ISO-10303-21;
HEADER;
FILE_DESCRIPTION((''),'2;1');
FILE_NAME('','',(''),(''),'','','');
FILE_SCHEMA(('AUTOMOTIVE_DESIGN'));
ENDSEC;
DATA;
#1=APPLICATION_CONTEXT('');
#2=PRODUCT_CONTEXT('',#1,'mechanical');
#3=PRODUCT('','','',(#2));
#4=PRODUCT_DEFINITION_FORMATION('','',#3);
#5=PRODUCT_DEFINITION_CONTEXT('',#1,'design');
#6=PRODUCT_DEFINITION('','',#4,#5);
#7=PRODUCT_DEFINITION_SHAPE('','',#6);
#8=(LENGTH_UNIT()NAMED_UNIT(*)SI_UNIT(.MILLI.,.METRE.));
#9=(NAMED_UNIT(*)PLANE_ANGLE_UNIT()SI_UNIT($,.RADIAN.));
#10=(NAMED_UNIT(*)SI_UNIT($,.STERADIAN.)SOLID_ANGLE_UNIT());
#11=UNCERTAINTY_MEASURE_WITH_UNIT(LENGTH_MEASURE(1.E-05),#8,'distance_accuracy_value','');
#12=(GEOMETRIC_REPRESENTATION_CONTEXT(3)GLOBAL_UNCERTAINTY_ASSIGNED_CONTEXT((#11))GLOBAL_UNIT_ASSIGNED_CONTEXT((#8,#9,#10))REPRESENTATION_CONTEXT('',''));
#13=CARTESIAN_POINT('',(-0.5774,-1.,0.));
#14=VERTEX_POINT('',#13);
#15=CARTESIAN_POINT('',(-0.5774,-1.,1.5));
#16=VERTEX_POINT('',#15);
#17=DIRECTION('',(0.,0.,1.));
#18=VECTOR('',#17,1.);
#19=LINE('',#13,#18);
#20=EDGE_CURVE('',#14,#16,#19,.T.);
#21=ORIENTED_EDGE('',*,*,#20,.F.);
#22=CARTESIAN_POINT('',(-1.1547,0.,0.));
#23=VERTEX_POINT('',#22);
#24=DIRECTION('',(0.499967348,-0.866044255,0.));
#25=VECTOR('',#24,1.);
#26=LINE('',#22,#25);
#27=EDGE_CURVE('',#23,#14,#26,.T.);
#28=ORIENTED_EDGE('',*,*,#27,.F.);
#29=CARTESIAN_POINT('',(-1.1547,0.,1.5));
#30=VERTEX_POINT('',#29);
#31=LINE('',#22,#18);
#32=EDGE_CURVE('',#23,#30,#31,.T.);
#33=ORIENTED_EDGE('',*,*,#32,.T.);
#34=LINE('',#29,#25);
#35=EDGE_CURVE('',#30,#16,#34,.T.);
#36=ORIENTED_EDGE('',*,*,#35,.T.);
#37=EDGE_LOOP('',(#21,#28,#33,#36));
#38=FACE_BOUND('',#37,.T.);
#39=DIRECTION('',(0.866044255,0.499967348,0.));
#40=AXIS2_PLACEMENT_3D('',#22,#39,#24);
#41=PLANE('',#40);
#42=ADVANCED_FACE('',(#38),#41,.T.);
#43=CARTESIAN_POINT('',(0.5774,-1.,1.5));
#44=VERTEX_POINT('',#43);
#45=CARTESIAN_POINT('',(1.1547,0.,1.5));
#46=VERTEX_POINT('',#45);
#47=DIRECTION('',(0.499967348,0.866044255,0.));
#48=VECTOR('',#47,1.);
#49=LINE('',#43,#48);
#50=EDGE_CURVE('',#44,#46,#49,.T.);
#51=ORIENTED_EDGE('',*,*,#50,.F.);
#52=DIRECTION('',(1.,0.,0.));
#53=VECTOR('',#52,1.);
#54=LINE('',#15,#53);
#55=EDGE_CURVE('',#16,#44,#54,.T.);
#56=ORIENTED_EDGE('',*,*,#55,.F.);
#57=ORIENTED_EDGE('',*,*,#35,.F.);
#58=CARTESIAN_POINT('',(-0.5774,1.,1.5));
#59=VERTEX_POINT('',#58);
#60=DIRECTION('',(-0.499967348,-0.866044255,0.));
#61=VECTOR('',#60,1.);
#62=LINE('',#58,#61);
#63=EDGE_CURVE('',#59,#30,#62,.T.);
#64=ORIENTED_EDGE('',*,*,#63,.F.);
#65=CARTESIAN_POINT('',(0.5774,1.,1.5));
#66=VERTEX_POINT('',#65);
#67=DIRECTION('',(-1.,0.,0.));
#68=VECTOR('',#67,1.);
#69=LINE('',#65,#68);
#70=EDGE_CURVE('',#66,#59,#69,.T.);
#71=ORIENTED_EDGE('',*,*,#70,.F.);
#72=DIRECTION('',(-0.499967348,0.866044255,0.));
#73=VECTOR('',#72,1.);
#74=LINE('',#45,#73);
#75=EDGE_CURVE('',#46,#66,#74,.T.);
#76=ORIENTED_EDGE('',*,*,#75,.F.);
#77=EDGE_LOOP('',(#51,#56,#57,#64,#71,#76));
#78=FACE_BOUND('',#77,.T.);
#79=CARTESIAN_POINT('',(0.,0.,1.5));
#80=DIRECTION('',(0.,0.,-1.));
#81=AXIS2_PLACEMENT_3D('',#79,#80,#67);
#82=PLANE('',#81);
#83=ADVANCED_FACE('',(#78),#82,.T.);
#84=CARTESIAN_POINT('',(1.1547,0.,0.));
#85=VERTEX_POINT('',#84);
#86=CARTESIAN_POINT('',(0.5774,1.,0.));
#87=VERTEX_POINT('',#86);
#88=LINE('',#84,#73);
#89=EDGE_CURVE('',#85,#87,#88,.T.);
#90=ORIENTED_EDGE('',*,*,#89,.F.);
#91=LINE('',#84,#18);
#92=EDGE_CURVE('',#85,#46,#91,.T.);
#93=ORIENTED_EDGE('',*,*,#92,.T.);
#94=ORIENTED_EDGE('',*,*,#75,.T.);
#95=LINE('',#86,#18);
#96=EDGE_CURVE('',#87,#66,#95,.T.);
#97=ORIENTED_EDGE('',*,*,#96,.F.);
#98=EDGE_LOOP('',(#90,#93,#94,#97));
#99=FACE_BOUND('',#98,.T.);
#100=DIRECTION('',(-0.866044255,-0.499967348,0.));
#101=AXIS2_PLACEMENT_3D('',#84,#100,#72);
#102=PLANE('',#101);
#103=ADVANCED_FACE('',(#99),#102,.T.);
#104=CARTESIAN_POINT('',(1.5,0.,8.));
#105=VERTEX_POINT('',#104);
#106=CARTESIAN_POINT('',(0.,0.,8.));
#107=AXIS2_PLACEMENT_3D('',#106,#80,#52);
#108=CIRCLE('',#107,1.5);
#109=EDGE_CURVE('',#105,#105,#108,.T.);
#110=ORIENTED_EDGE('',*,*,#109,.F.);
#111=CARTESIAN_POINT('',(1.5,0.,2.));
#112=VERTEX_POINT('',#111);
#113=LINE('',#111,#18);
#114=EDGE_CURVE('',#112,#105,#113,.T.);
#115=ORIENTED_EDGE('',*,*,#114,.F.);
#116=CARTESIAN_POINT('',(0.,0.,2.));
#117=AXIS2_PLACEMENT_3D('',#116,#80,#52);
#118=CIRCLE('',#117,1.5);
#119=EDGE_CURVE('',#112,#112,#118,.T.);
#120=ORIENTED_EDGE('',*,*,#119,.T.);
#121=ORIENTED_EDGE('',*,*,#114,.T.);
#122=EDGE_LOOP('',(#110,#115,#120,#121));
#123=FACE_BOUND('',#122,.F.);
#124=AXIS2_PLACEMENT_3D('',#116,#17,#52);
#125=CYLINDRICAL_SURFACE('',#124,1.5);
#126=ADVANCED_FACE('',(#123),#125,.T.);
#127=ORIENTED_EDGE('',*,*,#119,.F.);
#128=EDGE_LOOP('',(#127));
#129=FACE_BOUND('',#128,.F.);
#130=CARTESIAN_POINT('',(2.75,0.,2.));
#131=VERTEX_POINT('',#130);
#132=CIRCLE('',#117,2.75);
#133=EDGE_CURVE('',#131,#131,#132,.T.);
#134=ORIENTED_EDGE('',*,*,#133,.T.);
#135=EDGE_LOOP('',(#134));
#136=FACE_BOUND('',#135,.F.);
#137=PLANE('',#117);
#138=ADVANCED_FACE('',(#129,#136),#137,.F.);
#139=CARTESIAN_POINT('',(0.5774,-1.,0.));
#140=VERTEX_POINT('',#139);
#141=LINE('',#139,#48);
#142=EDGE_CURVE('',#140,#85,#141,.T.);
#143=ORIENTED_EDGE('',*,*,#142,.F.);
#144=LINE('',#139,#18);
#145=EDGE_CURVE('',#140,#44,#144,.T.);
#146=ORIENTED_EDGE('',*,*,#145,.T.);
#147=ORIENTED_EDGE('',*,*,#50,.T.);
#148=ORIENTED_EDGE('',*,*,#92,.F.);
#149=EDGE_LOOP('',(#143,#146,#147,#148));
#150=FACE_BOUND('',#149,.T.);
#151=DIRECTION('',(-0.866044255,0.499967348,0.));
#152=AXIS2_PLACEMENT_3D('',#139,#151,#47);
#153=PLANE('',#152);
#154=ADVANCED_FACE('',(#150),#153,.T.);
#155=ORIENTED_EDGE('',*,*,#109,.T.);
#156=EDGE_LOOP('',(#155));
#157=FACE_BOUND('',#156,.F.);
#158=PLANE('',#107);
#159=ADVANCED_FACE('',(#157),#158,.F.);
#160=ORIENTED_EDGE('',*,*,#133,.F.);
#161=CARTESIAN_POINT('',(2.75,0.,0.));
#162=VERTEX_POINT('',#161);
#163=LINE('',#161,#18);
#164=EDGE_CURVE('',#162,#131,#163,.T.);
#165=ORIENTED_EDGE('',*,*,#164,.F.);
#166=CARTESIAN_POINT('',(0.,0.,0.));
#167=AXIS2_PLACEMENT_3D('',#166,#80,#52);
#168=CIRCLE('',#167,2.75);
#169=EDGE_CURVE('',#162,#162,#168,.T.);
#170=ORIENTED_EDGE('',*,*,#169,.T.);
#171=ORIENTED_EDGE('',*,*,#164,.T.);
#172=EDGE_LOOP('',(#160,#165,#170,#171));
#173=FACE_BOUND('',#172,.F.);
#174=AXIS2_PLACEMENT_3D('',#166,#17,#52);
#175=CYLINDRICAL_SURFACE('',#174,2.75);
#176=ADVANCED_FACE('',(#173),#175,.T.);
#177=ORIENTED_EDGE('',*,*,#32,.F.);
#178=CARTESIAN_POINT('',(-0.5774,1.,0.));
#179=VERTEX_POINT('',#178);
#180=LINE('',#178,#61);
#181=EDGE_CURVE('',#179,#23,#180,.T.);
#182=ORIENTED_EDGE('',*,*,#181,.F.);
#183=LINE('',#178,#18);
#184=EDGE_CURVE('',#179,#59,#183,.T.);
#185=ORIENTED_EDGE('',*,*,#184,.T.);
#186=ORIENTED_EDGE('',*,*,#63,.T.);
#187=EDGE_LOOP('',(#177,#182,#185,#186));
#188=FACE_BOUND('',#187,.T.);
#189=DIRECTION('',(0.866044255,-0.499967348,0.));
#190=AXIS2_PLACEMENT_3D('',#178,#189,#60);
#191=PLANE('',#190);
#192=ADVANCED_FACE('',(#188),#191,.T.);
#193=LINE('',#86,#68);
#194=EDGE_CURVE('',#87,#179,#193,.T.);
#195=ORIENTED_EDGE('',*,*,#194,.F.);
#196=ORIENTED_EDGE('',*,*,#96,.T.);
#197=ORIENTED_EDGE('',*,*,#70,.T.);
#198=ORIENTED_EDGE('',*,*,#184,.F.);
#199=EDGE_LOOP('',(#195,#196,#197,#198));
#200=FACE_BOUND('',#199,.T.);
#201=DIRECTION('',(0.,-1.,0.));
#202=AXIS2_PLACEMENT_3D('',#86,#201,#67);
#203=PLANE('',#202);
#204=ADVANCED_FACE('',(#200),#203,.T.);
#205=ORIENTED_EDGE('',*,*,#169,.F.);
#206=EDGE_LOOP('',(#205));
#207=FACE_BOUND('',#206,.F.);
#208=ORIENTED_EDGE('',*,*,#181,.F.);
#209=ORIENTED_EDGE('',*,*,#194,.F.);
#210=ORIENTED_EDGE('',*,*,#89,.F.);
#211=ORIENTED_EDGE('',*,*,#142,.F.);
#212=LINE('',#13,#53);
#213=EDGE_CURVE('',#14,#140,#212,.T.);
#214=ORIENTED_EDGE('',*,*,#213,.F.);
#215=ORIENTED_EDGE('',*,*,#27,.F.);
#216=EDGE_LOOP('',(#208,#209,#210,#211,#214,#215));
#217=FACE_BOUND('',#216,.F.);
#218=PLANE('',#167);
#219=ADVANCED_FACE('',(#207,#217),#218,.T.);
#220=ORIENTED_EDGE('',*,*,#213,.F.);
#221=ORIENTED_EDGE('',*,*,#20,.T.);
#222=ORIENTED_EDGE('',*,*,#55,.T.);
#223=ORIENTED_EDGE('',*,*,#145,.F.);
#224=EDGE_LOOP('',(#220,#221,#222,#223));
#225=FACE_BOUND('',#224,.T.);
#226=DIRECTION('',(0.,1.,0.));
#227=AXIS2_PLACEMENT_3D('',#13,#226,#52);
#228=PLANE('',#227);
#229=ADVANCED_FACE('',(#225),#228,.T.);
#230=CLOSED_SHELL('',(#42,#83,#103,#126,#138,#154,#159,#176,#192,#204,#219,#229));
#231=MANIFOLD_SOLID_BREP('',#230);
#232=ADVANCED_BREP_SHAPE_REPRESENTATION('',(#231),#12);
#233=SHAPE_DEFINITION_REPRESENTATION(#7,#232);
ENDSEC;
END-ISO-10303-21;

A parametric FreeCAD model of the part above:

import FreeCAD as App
import Part
import Sketcher
from FreeCAD import Vector
Q = App.Units.Quantity


def add_polygon(sketch, points):
    """Adds a closed chain of lines whose ends are joined by coincident constraints."""
    first, n = sketch.GeometryCount, len(points)
    for a, b in zip(points, points[1:] + points[:1]):
        sketch.addGeometry(Part.LineSegment(App.Vector(*a, 0), App.Vector(*b, 0)), False)
    for i in range(n):
        sketch.addConstraint(Sketcher.Constraint("Coincident", first + i, 2, first + (i + 1) % n, 1))

doc = App.newDocument("Part")
params = doc.addObject("Spreadsheet::Sheet", "Params")
for row, (alias, value) in enumerate([
    ("sketch1_height", "6 mm"),
    ("sketch1_height2", "2 mm"),
    ("sketch1_width", "1.5 mm"),
    ("sketch1_width2", "2.75 mm"),
    ("revolution_angle", "360 deg"),
    ("pocket1_length", "1.5 mm"),
], start=1):
    params.set(f"A{row}", alias)
    params.set(f"B{row}", "=" + value)
    params.setAlias(f"B{row}", alias)

body = doc.addObject("PartDesign::Body", "Body")

# Sketch on XZ plane
sketch1 = body.newObject("Sketcher::SketchObject", "Sketch")
sketch1.AttachmentSupport = (doc.getObject("XZ_Plane"), [""])
sketch1.MapMode = "FlatFace"
add_polygon(sketch1, [(2.75, 0), (0, 0), (0, 8), (1.5, 8), (1.5, 2), (2.75, 2)])  # lines 0-5
sketch1.addConstraint(Sketcher.Constraint("Horizontal", 0))
sketch1.addConstraint(Sketcher.Constraint("Vertical", 1))
sketch1.addConstraint(Sketcher.Constraint("Horizontal", 2))
sketch1.addConstraint(Sketcher.Constraint("Vertical", 3))
sketch1.addConstraint(Sketcher.Constraint("Horizontal", 4))
sketch1.addConstraint(Sketcher.Constraint("Vertical", 5))
sketch1.addConstraint(Sketcher.Constraint("Coincident", 0, 2, -1, 1))
sketch1.addConstraint(Sketcher.Constraint("DistanceY", 3, 2, 3, 1, Q("6 mm")))
sketch1.addConstraint(Sketcher.Constraint("DistanceY", 5, 2, 5, 1, Q("2 mm")))
sketch1.addConstraint(Sketcher.Constraint("DistanceX", 2, 1, 2, 2, Q("1.5 mm")))
sketch1.addConstraint(Sketcher.Constraint("DistanceX", 0, 2, 0, 1, Q("2.75 mm")))
sketch1.setExpression("Constraints[13]", "Params.sketch1_height")
sketch1.setExpression("Constraints[14]", "Params.sketch1_height2")
sketch1.setExpression("Constraints[15]", "Params.sketch1_width")
sketch1.setExpression("Constraints[16]", "Params.sketch1_width2")
revolution = body.newObject("PartDesign::Revolution", "Revolution")
revolution.Profile = sketch1
revolution.ReferenceAxis = (sketch1, ["V_Axis"])
revolution.setExpression("Angle", "Params.revolution_angle")

# Sketch on XY plane
sketch2 = body.newObject("Sketcher::SketchObject", "Sketch001")
sketch2.AttachmentSupport = (doc.getObject("XY_Plane"), [""])
sketch2.MapMode = "FlatFace"
add_polygon(sketch2, [(-1.1547, 0), (-0.5774, 1), (0.5774, 1), (1.1547, 0), (0.5774, -1), (-0.5774, -1)])  # lines 0-5
sketch2.addConstraint(Sketcher.Constraint("Horizontal", 1))
sketch2.addConstraint(Sketcher.Constraint("Horizontal", 4))
sketch2.addConstraint(Sketcher.Constraint("Symmetric", 0, 2, 3, 2, -1, 1))
sketch2.addConstraint(Sketcher.Constraint("Symmetric", 2, 2, 5, 2, -1, 1))
sketch2.addConstraint(Sketcher.Constraint("PointOnObject", 2, 2, -1))
sketch2.addConstraint(Sketcher.Constraint("Parallel", 2, 5))
sketch2.addConstraint(Sketcher.Constraint("Vertical", 1, 2, 3, 2))
sketch2.addConstraint(Sketcher.Constraint("DistanceY", 3, 2, 1, 2, Q("2 mm")))
sketch2.addConstraint(Sketcher.Constraint("DistanceX", 1, 1, 1, 2, Q("1.1548 mm")))
sketch2.addConstraint(Sketcher.Constraint("DistanceX", 0, 2, 2, 2, Q("1.732 mm")))
pocket1 = body.newObject("PartDesign::Pocket", "Pocket")
pocket1.Profile = sketch2
pocket1.setExpression("Length", "Params.pocket1_length")
pocket1.Reversed = True

doc.recompute()
